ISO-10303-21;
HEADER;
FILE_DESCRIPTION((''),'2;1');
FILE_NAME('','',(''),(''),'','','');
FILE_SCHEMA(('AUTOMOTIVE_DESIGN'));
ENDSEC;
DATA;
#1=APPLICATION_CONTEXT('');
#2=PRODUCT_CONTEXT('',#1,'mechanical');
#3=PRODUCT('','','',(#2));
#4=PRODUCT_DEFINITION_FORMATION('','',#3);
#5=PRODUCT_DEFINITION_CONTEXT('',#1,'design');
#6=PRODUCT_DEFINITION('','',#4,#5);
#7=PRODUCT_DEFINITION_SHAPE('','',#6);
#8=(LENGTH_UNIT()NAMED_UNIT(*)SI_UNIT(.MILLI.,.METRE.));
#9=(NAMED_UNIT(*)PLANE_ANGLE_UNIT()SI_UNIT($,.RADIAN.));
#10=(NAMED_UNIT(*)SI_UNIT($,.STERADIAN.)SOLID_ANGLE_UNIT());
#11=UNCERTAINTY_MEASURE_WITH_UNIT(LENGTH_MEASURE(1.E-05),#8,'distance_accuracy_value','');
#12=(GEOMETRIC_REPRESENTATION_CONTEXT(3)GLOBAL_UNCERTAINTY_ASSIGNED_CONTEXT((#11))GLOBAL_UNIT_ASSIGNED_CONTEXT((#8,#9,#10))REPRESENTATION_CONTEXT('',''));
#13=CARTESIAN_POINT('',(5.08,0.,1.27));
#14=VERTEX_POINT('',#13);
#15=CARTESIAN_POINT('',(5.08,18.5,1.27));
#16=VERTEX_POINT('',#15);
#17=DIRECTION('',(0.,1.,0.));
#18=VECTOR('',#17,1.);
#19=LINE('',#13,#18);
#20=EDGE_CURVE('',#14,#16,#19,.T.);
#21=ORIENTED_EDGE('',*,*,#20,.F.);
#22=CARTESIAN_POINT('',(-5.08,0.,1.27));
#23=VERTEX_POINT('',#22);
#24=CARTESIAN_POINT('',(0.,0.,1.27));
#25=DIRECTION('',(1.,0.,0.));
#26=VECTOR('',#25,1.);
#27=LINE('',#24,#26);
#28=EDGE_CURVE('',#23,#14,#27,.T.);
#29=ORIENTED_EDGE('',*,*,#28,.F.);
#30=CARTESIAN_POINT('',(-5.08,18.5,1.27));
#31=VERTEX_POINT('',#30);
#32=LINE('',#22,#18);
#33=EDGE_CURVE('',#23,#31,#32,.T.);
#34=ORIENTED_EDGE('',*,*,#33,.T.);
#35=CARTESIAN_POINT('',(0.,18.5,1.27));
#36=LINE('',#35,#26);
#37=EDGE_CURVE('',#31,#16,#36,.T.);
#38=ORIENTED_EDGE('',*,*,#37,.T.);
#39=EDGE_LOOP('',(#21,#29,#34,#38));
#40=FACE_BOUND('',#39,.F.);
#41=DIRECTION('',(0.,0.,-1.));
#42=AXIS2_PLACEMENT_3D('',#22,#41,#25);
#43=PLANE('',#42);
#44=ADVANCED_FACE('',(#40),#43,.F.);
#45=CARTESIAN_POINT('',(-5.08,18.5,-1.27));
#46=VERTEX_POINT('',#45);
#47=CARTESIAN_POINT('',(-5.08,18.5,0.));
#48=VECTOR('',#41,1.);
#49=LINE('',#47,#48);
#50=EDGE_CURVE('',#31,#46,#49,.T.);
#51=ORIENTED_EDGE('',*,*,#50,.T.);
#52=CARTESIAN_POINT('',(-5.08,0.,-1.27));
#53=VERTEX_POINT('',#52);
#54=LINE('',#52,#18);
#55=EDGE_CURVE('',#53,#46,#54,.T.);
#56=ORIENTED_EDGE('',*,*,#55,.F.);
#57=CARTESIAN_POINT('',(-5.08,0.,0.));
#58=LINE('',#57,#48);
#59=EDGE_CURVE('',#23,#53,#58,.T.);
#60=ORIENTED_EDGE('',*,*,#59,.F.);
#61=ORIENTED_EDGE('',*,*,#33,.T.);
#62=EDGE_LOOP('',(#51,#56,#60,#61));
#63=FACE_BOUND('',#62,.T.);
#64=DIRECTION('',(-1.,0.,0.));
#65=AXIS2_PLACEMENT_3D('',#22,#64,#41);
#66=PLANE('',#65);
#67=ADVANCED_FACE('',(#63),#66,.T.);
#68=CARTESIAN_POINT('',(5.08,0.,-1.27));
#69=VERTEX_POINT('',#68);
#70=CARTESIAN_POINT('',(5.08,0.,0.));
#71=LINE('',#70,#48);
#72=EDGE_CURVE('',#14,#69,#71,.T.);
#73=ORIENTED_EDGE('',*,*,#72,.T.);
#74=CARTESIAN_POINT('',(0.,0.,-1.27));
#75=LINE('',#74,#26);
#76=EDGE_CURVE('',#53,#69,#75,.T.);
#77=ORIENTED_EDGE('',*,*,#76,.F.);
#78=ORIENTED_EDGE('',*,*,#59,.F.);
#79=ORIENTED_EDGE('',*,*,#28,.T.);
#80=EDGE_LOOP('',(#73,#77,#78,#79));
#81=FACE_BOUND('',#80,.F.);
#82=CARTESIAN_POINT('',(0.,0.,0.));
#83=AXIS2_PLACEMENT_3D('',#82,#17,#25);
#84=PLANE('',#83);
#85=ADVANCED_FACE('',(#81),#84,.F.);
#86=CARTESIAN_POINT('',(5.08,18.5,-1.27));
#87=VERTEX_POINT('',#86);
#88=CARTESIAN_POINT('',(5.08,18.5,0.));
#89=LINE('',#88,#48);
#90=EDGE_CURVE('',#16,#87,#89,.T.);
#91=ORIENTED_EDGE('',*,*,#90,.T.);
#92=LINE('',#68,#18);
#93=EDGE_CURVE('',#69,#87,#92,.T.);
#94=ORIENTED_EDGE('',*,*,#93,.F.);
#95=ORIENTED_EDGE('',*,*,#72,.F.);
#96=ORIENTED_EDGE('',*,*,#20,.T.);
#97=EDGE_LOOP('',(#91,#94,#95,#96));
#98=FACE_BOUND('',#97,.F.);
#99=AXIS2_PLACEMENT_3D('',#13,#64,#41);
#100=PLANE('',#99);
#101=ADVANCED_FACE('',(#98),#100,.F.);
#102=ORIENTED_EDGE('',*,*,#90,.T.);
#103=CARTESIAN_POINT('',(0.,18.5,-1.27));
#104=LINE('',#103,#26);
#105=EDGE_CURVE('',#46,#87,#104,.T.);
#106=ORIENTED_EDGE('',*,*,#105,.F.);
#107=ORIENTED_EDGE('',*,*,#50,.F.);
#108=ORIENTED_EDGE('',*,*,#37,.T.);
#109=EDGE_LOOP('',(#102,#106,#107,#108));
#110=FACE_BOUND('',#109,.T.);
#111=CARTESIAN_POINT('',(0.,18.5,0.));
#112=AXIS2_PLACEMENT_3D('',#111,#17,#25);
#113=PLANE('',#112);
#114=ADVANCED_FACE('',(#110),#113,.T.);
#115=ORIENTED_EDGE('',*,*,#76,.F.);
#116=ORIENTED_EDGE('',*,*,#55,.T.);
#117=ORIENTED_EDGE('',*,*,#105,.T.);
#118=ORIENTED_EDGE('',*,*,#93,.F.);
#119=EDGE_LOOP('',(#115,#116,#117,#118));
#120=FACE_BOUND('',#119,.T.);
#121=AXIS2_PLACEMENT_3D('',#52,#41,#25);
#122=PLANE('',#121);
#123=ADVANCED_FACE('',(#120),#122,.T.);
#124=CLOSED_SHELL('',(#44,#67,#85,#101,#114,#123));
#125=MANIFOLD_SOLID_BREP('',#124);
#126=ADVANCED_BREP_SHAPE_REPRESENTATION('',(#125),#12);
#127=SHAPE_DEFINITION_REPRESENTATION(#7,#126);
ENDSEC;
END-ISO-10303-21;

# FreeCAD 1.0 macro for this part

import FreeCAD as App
import Part
import Sketcher
from FreeCAD import Vector
Q = App.Units.Quantity


def add_polygon(sketch, points):
    """Adds a closed chain of lines whose ends are joined by coincident constraints."""
    first, n = sketch.GeometryCount, len(points)
    for a, b in zip(points, points[1:] + points[:1]):
        sketch.addGeometry(Part.LineSegment(App.Vector(*a, 0), App.Vector(*b, 0)), False)
    for i in range(n):
        sketch.addConstraint(Sketcher.Constraint("Coincident", first + i, 2, first + (i + 1) % n, 1))

doc = App.newDocument("Part")
body = doc.addObject("PartDesign::Body", "Body")

sketch1 = body.newObject("Sketcher::SketchObject", "Sketch")
sketch1.AttachmentSupport = (doc.getObject("XZ_Plane"), [""])
sketch1.MapMode = "FlatFace"
add_polygon(sketch1, [(-5.1, -1.3), (-5.1, 1.3), (5.1, 1.3), (5.1, -1.3)])
sketch1.addConstraint([
    Sketcher.Constraint("Vertical", 0),
    Sketcher.Constraint("Horizontal", 1),
    Sketcher.Constraint("Vertical", 2),
    Sketcher.Constraint("Horizontal", 3),
    Sketcher.Constraint("Symmetric", 0, 2, 2, 2, -1, 1),
    Sketcher.Constraint("DistanceX", 1, 1, 1, 2, Q("0.4 in")),
    Sketcher.Constraint("DistanceY", 0, 1, 0, 2, Q("0.1 in")),
])
pad1 = body.newObject("PartDesign::Pad", "Pad")
pad1.Profile = sketch1
pad1.Length = 18.5
pad1.Reversed = True

doc.recompute()
